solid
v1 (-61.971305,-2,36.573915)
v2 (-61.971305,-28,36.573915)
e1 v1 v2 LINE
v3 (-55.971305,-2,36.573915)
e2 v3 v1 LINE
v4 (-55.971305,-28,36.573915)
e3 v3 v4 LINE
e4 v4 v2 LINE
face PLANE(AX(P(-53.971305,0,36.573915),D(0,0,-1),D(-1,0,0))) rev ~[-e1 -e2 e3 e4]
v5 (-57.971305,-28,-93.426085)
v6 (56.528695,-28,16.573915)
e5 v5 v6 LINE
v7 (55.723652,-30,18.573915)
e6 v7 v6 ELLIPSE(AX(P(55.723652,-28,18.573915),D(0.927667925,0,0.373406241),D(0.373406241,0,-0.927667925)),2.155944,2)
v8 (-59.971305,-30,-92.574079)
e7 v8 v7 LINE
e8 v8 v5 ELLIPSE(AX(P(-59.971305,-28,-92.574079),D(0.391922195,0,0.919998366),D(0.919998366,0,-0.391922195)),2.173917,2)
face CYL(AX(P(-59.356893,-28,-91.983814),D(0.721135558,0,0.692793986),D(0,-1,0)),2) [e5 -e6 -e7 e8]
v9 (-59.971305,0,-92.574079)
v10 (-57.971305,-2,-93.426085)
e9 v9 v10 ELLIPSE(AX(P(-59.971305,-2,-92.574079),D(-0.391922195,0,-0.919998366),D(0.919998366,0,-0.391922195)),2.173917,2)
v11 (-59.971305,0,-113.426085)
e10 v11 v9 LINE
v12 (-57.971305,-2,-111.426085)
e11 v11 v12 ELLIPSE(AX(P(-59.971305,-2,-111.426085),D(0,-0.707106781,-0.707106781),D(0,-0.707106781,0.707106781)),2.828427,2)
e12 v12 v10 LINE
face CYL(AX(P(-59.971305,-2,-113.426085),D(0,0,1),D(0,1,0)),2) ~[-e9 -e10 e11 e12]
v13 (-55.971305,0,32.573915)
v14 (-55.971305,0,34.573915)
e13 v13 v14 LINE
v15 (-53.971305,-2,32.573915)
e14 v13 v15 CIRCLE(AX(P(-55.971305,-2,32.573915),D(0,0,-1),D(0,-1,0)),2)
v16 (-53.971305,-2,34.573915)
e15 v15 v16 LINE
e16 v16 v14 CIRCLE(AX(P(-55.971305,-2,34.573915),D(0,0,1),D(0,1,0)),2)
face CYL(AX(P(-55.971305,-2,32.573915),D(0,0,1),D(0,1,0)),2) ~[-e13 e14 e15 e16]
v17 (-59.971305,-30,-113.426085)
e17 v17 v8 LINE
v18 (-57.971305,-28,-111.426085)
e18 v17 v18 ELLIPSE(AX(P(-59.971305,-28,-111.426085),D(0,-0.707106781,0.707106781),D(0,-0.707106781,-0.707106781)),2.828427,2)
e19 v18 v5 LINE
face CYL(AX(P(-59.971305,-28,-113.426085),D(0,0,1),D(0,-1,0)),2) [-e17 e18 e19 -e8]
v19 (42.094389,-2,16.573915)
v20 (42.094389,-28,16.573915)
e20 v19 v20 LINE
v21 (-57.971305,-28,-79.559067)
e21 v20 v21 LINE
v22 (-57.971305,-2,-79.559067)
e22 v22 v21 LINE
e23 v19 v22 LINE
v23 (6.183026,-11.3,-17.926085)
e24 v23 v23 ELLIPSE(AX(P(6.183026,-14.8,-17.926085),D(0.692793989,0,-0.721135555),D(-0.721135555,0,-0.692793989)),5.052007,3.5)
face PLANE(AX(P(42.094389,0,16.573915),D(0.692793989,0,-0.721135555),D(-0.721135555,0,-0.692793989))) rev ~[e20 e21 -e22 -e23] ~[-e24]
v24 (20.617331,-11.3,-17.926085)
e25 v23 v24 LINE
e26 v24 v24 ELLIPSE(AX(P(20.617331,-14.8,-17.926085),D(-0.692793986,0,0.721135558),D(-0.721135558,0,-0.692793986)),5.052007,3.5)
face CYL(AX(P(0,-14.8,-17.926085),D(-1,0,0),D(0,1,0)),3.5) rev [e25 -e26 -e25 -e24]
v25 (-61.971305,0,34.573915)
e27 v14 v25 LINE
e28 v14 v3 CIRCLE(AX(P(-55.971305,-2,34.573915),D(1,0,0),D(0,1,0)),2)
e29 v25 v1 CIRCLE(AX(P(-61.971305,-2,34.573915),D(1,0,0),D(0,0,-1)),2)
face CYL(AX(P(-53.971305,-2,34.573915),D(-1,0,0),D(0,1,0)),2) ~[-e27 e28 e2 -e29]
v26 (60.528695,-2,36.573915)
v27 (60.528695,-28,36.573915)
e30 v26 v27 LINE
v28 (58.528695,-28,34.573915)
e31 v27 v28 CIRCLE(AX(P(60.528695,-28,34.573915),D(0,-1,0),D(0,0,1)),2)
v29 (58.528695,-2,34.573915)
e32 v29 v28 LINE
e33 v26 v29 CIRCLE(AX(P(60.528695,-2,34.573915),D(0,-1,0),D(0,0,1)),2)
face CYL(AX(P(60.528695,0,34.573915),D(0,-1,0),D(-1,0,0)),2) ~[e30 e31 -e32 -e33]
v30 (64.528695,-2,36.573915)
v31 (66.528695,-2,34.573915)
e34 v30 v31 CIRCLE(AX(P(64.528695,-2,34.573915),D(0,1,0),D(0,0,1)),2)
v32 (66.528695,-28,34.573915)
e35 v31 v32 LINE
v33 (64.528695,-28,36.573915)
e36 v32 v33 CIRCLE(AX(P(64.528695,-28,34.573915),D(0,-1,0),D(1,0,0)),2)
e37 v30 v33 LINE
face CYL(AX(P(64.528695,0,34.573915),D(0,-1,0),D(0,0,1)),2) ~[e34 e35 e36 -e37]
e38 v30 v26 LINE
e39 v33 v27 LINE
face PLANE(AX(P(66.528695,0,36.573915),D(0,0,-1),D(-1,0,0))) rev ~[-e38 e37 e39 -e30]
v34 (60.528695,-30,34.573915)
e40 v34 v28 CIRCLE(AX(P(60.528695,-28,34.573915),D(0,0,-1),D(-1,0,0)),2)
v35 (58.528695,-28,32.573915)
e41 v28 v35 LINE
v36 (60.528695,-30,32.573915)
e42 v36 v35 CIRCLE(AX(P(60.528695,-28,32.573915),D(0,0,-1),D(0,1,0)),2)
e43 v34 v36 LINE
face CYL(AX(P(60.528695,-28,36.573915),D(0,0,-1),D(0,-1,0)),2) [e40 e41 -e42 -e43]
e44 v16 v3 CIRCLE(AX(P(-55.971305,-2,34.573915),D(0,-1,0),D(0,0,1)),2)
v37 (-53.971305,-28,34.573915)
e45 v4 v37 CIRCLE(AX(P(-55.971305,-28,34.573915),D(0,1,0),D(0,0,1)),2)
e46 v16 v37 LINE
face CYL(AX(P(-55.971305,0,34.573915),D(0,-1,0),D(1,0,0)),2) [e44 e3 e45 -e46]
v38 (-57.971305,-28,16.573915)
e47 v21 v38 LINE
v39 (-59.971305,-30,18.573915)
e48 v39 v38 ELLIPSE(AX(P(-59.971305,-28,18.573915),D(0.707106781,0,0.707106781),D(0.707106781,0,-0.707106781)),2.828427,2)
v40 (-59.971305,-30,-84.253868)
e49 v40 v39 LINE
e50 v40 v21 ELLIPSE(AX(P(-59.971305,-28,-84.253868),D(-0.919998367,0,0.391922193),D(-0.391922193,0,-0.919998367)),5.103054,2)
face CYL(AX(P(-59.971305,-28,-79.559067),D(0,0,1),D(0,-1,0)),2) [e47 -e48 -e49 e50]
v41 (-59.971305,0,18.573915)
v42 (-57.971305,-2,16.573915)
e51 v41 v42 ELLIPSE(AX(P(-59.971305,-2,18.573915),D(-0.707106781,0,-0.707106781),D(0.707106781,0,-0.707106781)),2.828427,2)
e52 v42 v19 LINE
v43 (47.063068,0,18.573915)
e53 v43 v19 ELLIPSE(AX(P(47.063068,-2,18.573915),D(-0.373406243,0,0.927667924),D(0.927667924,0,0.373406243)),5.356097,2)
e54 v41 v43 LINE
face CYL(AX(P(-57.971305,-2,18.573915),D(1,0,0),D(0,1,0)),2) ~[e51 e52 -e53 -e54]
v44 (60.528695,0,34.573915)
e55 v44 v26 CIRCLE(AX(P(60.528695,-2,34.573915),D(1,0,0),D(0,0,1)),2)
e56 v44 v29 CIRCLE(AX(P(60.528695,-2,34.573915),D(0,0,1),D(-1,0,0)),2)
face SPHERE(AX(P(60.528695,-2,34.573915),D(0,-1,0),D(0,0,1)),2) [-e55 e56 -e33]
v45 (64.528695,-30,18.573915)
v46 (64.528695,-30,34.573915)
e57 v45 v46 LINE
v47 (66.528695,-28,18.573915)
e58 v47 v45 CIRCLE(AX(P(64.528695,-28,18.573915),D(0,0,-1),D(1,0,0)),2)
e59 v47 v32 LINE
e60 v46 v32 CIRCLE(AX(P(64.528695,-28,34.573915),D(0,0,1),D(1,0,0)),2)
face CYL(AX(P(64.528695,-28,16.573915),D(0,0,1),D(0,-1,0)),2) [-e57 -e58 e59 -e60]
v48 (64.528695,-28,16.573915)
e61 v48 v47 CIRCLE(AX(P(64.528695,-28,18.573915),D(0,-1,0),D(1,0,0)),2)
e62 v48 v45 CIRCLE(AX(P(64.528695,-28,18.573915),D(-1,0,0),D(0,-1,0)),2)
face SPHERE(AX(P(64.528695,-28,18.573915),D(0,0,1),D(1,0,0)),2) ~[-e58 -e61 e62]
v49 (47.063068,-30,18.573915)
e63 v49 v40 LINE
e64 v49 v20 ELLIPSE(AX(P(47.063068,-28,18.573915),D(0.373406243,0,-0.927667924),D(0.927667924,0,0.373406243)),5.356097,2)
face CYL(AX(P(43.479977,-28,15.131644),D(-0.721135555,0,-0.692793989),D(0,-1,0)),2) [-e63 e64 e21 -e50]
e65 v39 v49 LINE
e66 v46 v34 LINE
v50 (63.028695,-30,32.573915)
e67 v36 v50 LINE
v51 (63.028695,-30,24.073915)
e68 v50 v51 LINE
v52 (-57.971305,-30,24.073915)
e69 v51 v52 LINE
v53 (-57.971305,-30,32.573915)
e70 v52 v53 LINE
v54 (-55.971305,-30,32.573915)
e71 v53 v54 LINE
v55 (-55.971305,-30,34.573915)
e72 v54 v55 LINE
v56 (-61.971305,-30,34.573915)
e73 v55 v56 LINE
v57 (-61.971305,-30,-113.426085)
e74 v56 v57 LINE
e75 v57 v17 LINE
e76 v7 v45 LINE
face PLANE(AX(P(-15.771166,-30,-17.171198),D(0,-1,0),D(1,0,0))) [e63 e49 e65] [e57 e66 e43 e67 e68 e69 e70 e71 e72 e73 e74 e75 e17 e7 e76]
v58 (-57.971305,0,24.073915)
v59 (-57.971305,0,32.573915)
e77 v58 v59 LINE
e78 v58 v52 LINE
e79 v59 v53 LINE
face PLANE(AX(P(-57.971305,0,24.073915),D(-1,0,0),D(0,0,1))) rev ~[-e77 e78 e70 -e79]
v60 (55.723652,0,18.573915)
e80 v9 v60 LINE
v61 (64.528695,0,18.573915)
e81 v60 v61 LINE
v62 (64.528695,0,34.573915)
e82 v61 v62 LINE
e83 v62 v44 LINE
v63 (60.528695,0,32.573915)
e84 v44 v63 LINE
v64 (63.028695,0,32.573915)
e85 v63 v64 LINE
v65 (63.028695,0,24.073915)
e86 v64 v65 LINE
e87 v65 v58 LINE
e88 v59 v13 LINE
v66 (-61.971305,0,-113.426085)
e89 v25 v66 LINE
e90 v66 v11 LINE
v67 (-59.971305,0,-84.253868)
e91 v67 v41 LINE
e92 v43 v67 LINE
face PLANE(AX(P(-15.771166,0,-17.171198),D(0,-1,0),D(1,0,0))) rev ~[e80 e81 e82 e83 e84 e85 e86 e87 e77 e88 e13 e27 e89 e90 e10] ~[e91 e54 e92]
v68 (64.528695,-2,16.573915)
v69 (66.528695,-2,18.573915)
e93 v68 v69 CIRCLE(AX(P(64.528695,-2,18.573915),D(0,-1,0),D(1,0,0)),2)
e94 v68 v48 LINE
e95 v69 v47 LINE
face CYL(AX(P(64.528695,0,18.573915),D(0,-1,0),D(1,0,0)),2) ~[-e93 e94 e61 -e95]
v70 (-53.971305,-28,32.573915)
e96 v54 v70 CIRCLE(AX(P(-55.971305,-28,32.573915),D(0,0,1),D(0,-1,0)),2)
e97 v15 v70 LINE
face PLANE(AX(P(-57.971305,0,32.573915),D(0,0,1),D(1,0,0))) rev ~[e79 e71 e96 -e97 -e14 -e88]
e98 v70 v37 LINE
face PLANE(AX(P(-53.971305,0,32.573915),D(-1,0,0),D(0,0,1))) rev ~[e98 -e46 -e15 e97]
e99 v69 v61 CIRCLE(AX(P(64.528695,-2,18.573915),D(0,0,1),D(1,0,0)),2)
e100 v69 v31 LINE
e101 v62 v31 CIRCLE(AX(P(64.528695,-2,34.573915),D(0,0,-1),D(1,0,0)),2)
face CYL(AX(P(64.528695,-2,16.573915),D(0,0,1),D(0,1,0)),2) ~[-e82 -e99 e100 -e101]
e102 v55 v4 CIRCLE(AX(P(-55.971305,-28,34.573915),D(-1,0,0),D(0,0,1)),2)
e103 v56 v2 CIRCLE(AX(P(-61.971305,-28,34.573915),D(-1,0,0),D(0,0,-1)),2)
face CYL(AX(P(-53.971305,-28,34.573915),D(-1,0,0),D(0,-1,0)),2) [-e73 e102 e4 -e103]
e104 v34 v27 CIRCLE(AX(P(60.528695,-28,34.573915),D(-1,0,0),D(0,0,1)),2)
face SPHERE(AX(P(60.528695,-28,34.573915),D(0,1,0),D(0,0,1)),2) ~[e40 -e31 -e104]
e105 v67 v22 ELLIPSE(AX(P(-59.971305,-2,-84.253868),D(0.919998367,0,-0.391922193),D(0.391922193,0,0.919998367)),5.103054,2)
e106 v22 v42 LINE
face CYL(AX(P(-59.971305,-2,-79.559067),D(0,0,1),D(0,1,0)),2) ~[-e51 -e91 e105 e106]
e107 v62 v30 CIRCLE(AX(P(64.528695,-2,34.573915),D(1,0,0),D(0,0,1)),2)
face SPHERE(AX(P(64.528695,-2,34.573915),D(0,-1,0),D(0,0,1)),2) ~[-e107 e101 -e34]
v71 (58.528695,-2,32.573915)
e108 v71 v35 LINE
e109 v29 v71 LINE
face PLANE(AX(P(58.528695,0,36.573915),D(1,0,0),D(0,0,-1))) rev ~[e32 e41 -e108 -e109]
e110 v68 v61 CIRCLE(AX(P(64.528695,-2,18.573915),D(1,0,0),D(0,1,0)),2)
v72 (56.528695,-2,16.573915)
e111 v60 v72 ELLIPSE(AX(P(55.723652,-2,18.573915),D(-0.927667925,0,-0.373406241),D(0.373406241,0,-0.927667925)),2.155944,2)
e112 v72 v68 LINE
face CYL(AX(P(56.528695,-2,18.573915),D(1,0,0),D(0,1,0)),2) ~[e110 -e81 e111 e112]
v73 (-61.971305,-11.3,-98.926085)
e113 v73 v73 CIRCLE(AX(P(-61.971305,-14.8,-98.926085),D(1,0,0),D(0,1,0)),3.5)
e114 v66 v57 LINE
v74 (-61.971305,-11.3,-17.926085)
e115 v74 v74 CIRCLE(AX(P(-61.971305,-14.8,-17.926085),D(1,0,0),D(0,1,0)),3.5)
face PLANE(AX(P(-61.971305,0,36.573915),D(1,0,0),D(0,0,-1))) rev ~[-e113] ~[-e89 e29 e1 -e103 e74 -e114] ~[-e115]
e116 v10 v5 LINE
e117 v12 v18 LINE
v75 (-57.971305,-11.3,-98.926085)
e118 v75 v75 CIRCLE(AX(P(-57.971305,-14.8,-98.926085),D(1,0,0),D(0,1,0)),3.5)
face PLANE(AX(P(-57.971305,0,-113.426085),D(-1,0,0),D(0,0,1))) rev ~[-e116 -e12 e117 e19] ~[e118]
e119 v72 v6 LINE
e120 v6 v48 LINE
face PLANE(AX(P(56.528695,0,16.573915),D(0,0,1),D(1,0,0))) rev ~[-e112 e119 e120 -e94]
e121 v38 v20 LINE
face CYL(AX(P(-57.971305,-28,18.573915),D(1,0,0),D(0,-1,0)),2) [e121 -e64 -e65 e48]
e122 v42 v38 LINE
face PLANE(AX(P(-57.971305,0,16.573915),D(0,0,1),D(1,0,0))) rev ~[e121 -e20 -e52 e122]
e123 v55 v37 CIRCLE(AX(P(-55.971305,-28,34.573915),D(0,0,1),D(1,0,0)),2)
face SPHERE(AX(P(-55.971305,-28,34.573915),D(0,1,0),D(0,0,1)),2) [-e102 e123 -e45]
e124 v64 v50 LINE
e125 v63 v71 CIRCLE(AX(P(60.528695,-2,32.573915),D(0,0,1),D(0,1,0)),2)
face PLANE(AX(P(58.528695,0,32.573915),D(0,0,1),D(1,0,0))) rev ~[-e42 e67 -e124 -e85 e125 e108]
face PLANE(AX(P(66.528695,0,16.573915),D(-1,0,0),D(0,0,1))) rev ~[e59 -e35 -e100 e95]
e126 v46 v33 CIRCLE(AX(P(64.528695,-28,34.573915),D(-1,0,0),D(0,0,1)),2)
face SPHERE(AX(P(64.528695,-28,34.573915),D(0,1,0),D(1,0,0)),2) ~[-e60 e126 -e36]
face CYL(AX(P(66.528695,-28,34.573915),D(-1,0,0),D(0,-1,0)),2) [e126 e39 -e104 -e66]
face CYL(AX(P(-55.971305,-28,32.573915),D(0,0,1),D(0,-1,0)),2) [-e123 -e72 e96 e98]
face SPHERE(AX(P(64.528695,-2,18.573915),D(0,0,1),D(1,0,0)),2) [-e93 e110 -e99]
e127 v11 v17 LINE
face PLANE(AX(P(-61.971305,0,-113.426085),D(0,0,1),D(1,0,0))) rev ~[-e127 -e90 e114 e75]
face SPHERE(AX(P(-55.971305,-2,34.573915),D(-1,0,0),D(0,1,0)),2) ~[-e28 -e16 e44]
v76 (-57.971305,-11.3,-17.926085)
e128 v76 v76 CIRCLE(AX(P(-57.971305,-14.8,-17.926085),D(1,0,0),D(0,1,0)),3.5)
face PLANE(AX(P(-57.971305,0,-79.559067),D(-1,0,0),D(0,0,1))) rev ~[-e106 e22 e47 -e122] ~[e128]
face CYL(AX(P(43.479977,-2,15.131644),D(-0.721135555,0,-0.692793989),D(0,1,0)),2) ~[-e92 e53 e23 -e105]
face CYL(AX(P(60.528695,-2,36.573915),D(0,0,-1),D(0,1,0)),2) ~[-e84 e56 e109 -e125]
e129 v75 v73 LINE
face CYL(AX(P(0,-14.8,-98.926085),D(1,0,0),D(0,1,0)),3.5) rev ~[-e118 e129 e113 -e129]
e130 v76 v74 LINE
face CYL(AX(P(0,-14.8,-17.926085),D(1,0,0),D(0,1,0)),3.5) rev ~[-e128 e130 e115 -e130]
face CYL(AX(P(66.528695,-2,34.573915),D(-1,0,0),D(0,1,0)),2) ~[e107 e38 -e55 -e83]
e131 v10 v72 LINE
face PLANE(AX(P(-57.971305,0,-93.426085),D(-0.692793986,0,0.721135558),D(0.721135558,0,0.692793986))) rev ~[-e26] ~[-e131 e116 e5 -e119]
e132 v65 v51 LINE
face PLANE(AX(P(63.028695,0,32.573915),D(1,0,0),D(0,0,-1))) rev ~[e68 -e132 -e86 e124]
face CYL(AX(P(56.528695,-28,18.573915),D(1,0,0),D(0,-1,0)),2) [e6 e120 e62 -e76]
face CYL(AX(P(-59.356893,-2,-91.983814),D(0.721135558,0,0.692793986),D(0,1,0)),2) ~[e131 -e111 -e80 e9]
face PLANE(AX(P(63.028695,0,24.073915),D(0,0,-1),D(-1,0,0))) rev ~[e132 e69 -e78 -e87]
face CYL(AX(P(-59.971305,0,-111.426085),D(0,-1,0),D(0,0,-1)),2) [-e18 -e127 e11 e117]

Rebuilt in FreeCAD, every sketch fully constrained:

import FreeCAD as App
import Part
import Sketcher
from FreeCAD import Vector
Q = App.Units.Quantity


def edges_at(feature, points):
    """Names of the edges that pass closest to the given points."""
    edges = feature.Shape.Edges
    near = lambda p: min(range(len(edges)), key=lambda i: edges[i].distToShape(Part.Vertex(*p))[0])
    return sorted({f"Edge{near(p) + 1}" for p in points})

doc = App.newDocument("Part")
body = doc.addObject("PartDesign::Body", "Body")

sketch1 = doc.addObject("Sketcher::SketchObject", "Sketch")
body.addObject(sketch1)
sketch1.AttachmentSupport = (doc.XZ_Plane, [""])
sketch1.MapMode = "FlatFace"
sketch1.addGeometry([
    Part.LineSegment(Vector(-58, 24.1, 0), Vector(-58, 32.6, 0)),
    Part.LineSegment(Vector(-58, 32.6, 0), Vector(-54, 32.6, 0)),
    Part.LineSegment(Vector(-54, 32.6, 0), Vector(-54, 36.6, 0)),
    Part.LineSegment(Vector(-54, 36.6, 0), Vector(-62, 36.6, 0)),
    Part.LineSegment(Vector(-62, 36.6, 0), Vector(-62, -113.4, 0)),
    Part.LineSegment(Vector(-62, -113.4, 0), Vector(-58, -113.4, 0)),
    Part.LineSegment(Vector(-58, -113.4, 0), Vector(-58, -93.4, 0)),
    Part.LineSegment(Vector(-58, -93.4, 0), Vector(56.5, 16.6, 0)),
    Part.LineSegment(Vector(56.5, 16.6, 0), Vector(66.5, 16.6, 0)),
    Part.LineSegment(Vector(66.5, 16.6, 0), Vector(66.5, 36.6, 0)),
    Part.LineSegment(Vector(66.5, 36.6, 0), Vector(58.5, 36.6, 0)),
    Part.LineSegment(Vector(58.5, 36.6, 0), Vector(58.5, 32.6, 0)),
    Part.LineSegment(Vector(58.5, 32.6, 0), Vector(63, 32.6, 0)),
    Part.LineSegment(Vector(63, 32.6, 0), Vector(63, 24.1, 0)),
    Part.LineSegment(Vector(63, 24.1, 0), Vector(-58, 24.1, 0)),
    Part.LineSegment(Vector(42.1, 16.6, 0), Vector(-58, -79.6, 0)),
    Part.LineSegment(Vector(-58, -79.6, 0), Vector(-58, 16.6, 0)),
    Part.LineSegment(Vector(-58, 16.6, 0), Vector(42.1, 16.6, 0)),
], False)
sketch1.addConstraint([
    Sketcher.Constraint("Coincident", 0, 2, 1, 1),
    Sketcher.Constraint("Coincident", 1, 2, 2, 1),
    Sketcher.Constraint("Coincident", 2, 2, 3, 1),
    Sketcher.Constraint("Coincident", 3, 2, 4, 1),
    Sketcher.Constraint("Coincident", 4, 2, 5, 1),
    Sketcher.Constraint("Coincident", 5, 2, 6, 1),
    Sketcher.Constraint("Coincident", 6, 2, 7, 1),
    Sketcher.Constraint("Coincident", 7, 2, 8, 1),
    Sketcher.Constraint("Coincident", 8, 2, 9, 1),
    Sketcher.Constraint("Coincident", 9, 2, 10, 1),
    Sketcher.Constraint("Coincident", 10, 2, 11, 1),
    Sketcher.Constraint("Coincident", 11, 2, 12, 1),
    Sketcher.Constraint("Coincident", 12, 2, 13, 1),
    Sketcher.Constraint("Coincident", 13, 2, 14, 1),
    Sketcher.Constraint("Coincident", 14, 2, 0, 1),
    Sketcher.Constraint("Coincident", 15, 2, 16, 1),
    Sketcher.Constraint("Coincident", 16, 2, 17, 1),
    Sketcher.Constraint("Coincident", 17, 2, 15, 1),
    Sketcher.Constraint("Vertical", 0),
    Sketcher.Constraint("Horizontal", 1),
    Sketcher.Constraint("Vertical", 2),
    Sketcher.Constraint("Horizontal", 3),
    Sketcher.Constraint("Vertical", 4),
    Sketcher.Constraint("Horizontal", 5),
    Sketcher.Constraint("Vertical", 6),
    Sketcher.Constraint("Horizontal", 8),
    Sketcher.Constraint("Vertical", 9),
    Sketcher.Constraint("Horizontal", 10),
    Sketcher.Constraint("Vertical", 11),
    Sketcher.Constraint("Horizontal", 12),
    Sketcher.Constraint("Vertical", 13),
    Sketcher.Constraint("Horizontal", 14),
    Sketcher.Constraint("Vertical", 16),
    Sketcher.Constraint("Horizontal", 17),
    Sketcher.Constraint("Parallel", 7, 15),
    Sketcher.Constraint("Horizontal", 3, 2, 9, 2),
    Sketcher.Constraint("Horizontal", 1, 2, 11, 2),
    Sketcher.Constraint("Horizontal", 8, 2, 16, 2),
    Sketcher.Constraint("Vertical", 0, 2, 5, 2),
    Sketcher.Constraint("Vertical", 14, 2, 15, 2),
    Sketcher.Constraint("Equal", 1, 5),
    Sketcher.Constraint("Equal", 3, 10),
    Sketcher.Constraint("Equal", 5, 2),
    Sketcher.Constraint("Equal", 6, 9),
    Sketcher.Constraint("DistanceX", 1, 1, 1, 2, Q("4 mm")),
    Sketcher.Constraint("DistanceX", 8, 1, 8, 2, Q("10 mm")),
    Sketcher.Constraint("DistanceX", 14, 2, 14, 1, Q("121 mm")),
    Sketcher.Constraint("DistanceY", 4, 2, 4, 1, Q("150 mm")),
    Sketcher.Constraint("DistanceY", 6, 1, 6, 2, Q("20 mm")),
    Sketcher.Constraint("DistanceX", 12, 1, 12, 2, Q("4.5 mm")),
    Sketcher.Constraint("DistanceY", 0, 1, 0, 2, Q("8.5 mm")),
    Sketcher.Constraint("DistanceY", 16, 1, 16, 2, Q("96.132982 mm")),
    Sketcher.Constraint("DistanceX", -1, 1, 17, 2, Q("42.094389 mm")),
    Sketcher.Constraint("DistanceY", -1, 1, 0, 2, Q("32.573915 mm")),
])
pad1 = doc.addObject("PartDesign::Pad", "Pad")
body.addObject(pad1)
pad1.Profile = sketch1
pad1.Length = 30

sketch2 = doc.addObject("Sketcher::SketchObject", "Sketch001")
body.addObject(sketch2)
sketch2.AttachmentSupport = (doc.YZ_Plane, [""])
sketch2.MapMode = "FlatFace"
sketch2.addGeometry([
    Part.Circle(Vector(-14.8, -98.9, 0), Vector(0, 0, 1), 3.5),
    Part.Circle(Vector(-14.8, -17.9, 0), Vector(0, 0, 1), 3.5),
], False)
sketch2.addConstraint([
    Sketcher.Constraint("Equal", 0, 1),
    Sketcher.Constraint("Vertical", 0, 3, 1, 3),
    Sketcher.Constraint("Diameter", 0, Q("7 mm")),
    Sketcher.Constraint("DistanceY", 0, 3, 1, 3, Q("81 mm")),
    Sketcher.Constraint("DistanceX", 0, 3, -1, 1, Q("14.8 mm")),
    Sketcher.Constraint("DistanceY", 0, 3, -1, 1, Q("98.926085 mm")),
])
pocket1 = doc.addObject("PartDesign::Pocket", "Pocket")
body.addObject(pocket1)
pocket1.Profile = sketch2
pocket1.Length = 73.1

sketch3 = doc.addObject("Sketcher::SketchObject", "Sketch002")
body.addObject(sketch3)
sketch3.AttachmentSupport = (doc.YZ_Plane, [""])
sketch3.MapMode = "FlatFace"
sketch3.addGeometry([
    Part.Circle(Vector(-14.8, -98.9, 0), Vector(0, 0, 1), 3.5),
    Part.Circle(Vector(-14.8, -17.9, 0), Vector(0, 0, 1), 3.5),
], False)
sketch3.addConstraint([
    Sketcher.Constraint("Equal", 0, 1),
    Sketcher.Constraint("Vertical", 0, 3, 1, 3),
    Sketcher.Constraint("Diameter", 0, Q("7 mm")),
    Sketcher.Constraint("DistanceY", 0, 3, 1, 3, Q("81 mm")),
    Sketcher.Constraint("DistanceX", 0, 3, -1, 1, Q("14.8 mm")),
    Sketcher.Constraint("DistanceY", 0, 3, -1, 1, Q("98.926085 mm")),
])
pocket2 = doc.addObject("PartDesign::Pocket", "Pocket001")
body.addObject(pocket2)
pocket2.Profile = sketch3
pocket2.Type = "ThroughAll"
pocket2.Midplane = True
doc.recompute()

fillet = doc.addObject("PartDesign::Fillet", "Fillet")
body.addObject(fillet)
fillet.Base = (pocket2, edges_at(pocket2, [
    (66.529, -15, 36.574),
    (58.529, -15, 36.574),
    (66.529, -30, 26.574),
    (62.529, -30, 36.574),
    (62.529, 0, 36.574),
    (66.529, 0, 26.574),
    (58.529, 0, 34.574),
    (58.529, -30, 34.574),
    (66.529, -15, 16.574),
    (61.529, -30, 16.574),
    (61.529, 0, 16.574),
    (-7.938, -30, 16.574),
    (-7.938, 0, 16.574),
    (-0.721, -30, -38.426),
    (-7.938, -30, -31.493),
    (-57.971, -30, -31.493),
    (-57.971, 0, -31.493),
    (-0.721, 0, -38.426),
    (-7.938, 0, -31.493),
    (-57.971, -15, -113.426),
    (-57.971, 0, -103.426),
    (-57.971, -30, -103.426),
    (-57.971, 0, 36.574),
    (-53.971, 0, 34.574),
    (-53.971, -15, 36.574),
    (-57.971, -30, 36.574),
    (-53.971, -30, 34.574),
]))
fillet.Radius = 2

doc.recompute()
